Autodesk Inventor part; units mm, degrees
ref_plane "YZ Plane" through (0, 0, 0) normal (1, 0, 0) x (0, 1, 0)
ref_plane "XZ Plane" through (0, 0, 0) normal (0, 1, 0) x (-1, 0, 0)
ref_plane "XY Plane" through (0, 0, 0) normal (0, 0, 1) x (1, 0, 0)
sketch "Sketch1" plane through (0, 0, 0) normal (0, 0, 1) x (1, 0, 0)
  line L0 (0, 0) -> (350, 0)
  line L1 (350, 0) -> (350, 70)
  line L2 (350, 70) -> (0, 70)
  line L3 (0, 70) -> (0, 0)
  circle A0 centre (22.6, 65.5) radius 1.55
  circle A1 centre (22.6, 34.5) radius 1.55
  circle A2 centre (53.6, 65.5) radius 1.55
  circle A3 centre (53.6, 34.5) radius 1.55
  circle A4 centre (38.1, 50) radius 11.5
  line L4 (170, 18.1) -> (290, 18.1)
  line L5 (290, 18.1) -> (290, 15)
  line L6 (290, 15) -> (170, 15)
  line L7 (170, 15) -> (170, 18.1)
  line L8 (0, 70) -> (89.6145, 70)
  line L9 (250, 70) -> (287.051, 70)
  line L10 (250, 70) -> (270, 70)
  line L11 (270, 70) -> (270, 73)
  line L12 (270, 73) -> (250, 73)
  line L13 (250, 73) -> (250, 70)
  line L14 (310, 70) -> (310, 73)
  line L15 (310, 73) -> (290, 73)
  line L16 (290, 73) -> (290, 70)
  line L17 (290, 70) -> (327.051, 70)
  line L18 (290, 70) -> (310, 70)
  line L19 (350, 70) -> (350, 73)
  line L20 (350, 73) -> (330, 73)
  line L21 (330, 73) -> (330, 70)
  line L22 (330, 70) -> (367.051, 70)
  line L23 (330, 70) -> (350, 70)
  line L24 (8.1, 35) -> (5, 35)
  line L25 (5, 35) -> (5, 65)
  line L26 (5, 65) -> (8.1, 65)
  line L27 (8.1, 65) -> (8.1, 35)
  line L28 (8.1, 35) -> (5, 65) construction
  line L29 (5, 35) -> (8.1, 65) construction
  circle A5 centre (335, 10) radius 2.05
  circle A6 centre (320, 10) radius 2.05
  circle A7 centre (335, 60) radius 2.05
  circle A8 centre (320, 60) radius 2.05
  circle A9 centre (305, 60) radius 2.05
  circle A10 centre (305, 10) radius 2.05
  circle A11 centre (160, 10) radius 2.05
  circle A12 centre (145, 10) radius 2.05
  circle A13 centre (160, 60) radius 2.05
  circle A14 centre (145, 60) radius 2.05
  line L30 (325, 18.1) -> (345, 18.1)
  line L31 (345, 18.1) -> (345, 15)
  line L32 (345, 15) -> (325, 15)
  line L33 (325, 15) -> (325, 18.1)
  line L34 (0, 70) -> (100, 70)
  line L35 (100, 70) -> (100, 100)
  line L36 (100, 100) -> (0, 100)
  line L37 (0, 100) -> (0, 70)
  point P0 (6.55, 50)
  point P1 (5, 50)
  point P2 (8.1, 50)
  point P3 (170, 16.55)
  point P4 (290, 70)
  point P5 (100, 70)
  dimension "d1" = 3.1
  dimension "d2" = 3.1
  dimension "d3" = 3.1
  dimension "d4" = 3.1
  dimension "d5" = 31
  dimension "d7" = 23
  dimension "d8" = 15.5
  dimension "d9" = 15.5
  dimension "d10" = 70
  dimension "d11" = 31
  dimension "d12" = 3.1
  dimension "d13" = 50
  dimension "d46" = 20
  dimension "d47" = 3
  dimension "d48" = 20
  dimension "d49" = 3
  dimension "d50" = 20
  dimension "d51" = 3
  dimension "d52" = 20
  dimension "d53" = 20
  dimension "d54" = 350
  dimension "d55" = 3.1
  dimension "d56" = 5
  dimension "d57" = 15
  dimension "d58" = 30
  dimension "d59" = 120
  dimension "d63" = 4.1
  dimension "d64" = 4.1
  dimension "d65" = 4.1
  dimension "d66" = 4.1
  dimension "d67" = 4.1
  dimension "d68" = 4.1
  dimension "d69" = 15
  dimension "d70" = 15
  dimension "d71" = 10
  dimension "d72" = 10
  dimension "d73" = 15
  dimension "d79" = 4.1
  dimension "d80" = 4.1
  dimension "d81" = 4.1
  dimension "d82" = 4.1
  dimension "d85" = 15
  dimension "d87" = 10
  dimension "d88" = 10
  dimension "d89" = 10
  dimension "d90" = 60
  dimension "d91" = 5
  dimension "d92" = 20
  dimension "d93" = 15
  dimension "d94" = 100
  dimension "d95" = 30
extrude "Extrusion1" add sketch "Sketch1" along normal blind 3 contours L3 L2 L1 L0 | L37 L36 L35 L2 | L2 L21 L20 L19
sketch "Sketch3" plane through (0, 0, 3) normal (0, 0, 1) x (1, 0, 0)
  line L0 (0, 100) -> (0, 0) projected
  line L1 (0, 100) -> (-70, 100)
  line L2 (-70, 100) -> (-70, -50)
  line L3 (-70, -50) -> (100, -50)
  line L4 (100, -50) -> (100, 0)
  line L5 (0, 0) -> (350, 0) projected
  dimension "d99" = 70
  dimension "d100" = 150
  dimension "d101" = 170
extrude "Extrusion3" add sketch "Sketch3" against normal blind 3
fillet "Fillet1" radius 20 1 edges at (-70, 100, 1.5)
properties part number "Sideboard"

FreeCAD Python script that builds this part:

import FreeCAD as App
import Part
import Sketcher

V = App.Vector


def edges_at(feature, points):
    """Names of the edges that pass closest to the given points."""
    edges = feature.Shape.Edges
    near = lambda p: min(range(len(edges)), key=lambda i: edges[i].distToShape(Part.Vertex(*p))[0])
    return sorted({f"Edge{near(p) + 1}" for p in points})

doc = App.newDocument("Part")
body = doc.addObject("PartDesign::Body", "Body")

# Sketch on XY plane
sketch1 = doc.addObject("Sketcher::SketchObject", "Sketch")
body.addObject(sketch1)
sketch1.AttachmentSupport = (doc.XY_Plane, [""])
sketch1.MapMode = "FlatFace"
sketch1.addGeometry(Part.LineSegment(V(0, 0, 0), V(350, 0, 0)), False)
sketch1.addGeometry(Part.LineSegment(V(350, 0, 0), V(350, 73, 0)), False)
sketch1.addGeometry(Part.LineSegment(V(350, 73, 0), V(330, 73, 0)), False)
sketch1.addGeometry(Part.LineSegment(V(330, 73, 0), V(330, 70, 0)), False)
sketch1.addGeometry(Part.LineSegment(V(330, 70, 0), V(100, 70, 0)), False)
sketch1.addGeometry(Part.LineSegment(V(100, 70, 0), V(100, 100, 0)), False)
sketch1.addGeometry(Part.LineSegment(V(100, 100, 0), V(0, 100, 0)), False)
sketch1.addGeometry(Part.LineSegment(V(0, 100, 0), V(0, 0, 0)), False)
sketch1.addGeometry(Part.Circle(V(145, 10, 0), V(0, 0, 1), 2), False)
sketch1.addGeometry(Part.Circle(V(160, 10, 0), V(0, 0, 1), 2), False)
sketch1.addGeometry(Part.Circle(V(22.6, 34.5, 0), V(0, 0, 1), 1.6), False)
sketch1.addGeometry(Part.Circle(V(53.6, 34.5, 0), V(0, 0, 1), 1.6), False)
sketch1.addGeometry(Part.LineSegment(V(170, 15, 0), V(170, 18.1, 0)), False)
sketch1.addGeometry(Part.LineSegment(V(170, 18.1, 0), V(290, 18.1, 0)), False)
sketch1.addGeometry(Part.LineSegment(V(290, 18.1, 0), V(290, 15, 0)), False)
sketch1.addGeometry(Part.LineSegment(V(290, 15, 0), V(170, 15, 0)), False)
sketch1.addGeometry(Part.Circle(V(305, 10, 0), V(0, 0, 1), 2), False)
sketch1.addGeometry(Part.Circle(V(320, 10, 0), V(0, 0, 1), 2), False)
sketch1.addGeometry(Part.Circle(V(335, 10, 0), V(0, 0, 1), 2), False)
sketch1.addGeometry(Part.LineSegment(V(325, 15, 0), V(325, 18.1, 0)), False)
sketch1.addGeometry(Part.LineSegment(V(325, 18.1, 0), V(345, 18.1, 0)), False)
sketch1.addGeometry(Part.LineSegment(V(345, 18.1, 0), V(345, 15, 0)), False)
sketch1.addGeometry(Part.LineSegment(V(345, 15, 0), V(325, 15, 0)), False)
sketch1.addGeometry(Part.LineSegment(V(8.1, 65, 0), V(8.1, 35, 0)), False)
sketch1.addGeometry(Part.LineSegment(V(8.1, 35, 0), V(5, 35, 0)), False)
sketch1.addGeometry(Part.LineSegment(V(5, 35, 0), V(5, 65, 0)), False)
sketch1.addGeometry(Part.LineSegment(V(5, 65, 0), V(8.1, 65, 0)), False)
sketch1.addGeometry(Part.Circle(V(38.1, 50, 0), V(0, 0, 1), 11.5), False)
sketch1.addGeometry(Part.Circle(V(22.6, 65.5, 0), V(0, 0, 1), 1.6), False)
sketch1.addGeometry(Part.Circle(V(53.6, 65.5, 0), V(0, 0, 1), 1.6), False)
sketch1.addGeometry(Part.Circle(V(145, 60, 0), V(0, 0, 1), 2), False)
sketch1.addGeometry(Part.Circle(V(160, 60, 0), V(0, 0, 1), 2), False)
sketch1.addGeometry(Part.Circle(V(305, 60, 0), V(0, 0, 1), 2), False)
sketch1.addGeometry(Part.Circle(V(320, 60, 0), V(0, 0, 1), 2), False)
sketch1.addGeometry(Part.Circle(V(335, 60, 0), V(0, 0, 1), 2), False)
sketch1.addConstraint(Sketcher.Constraint("Coincident", 0, 2, 1, 1))
sketch1.addConstraint(Sketcher.Constraint("Coincident", 1, 2, 2, 1))
sketch1.addConstraint(Sketcher.Constraint("Coincident", 2, 2, 3, 1))
sketch1.addConstraint(Sketcher.Constraint("Coincident", 3, 2, 4, 1))
sketch1.addConstraint(Sketcher.Constraint("Coincident", 4, 2, 5, 1))
sketch1.addConstraint(Sketcher.Constraint("Coincident", 5, 2, 6, 1))
sketch1.addConstraint(Sketcher.Constraint("Coincident", 6, 2, 7, 1))
sketch1.addConstraint(Sketcher.Constraint("Coincident", 7, 2, 0, 1))
sketch1.addConstraint(Sketcher.Constraint("Coincident", 12, 2, 13, 1))
sketch1.addConstraint(Sketcher.Constraint("Coincident", 13, 2, 14, 1))
sketch1.addConstraint(Sketcher.Constraint("Coincident", 14, 2, 15, 1))
sketch1.addConstraint(Sketcher.Constraint("Coincident", 15, 2, 12, 1))
sketch1.addConstraint(Sketcher.Constraint("Coincident", 19, 2, 20, 1))
sketch1.addConstraint(Sketcher.Constraint("Coincident", 20, 2, 21, 1))
sketch1.addConstraint(Sketcher.Constraint("Coincident", 21, 2, 22, 1))
sketch1.addConstraint(Sketcher.Constraint("Coincident", 22, 2, 19, 1))
sketch1.addConstraint(Sketcher.Constraint("Coincident", 23, 2, 24, 1))
sketch1.addConstraint(Sketcher.Constraint("Coincident", 24, 2, 25, 1))
sketch1.addConstraint(Sketcher.Constraint("Coincident", 25, 2, 26, 1))
sketch1.addConstraint(Sketcher.Constraint("Coincident", 26, 2, 23, 1))
sketch1.addConstraint(Sketcher.Constraint("Horizontal", 0))
sketch1.addConstraint(Sketcher.Constraint("Vertical", 1))
sketch1.addConstraint(Sketcher.Constraint("Horizontal", 2))
sketch1.addConstraint(Sketcher.Constraint("Vertical", 3))
sketch1.addConstraint(Sketcher.Constraint("Horizontal", 4))
sketch1.addConstraint(Sketcher.Constraint("Vertical", 5))
sketch1.addConstraint(Sketcher.Constraint("Horizontal", 6))
sketch1.addConstraint(Sketcher.Constraint("Vertical", 7))
sketch1.addConstraint(Sketcher.Constraint("Vertical", 12))
sketch1.addConstraint(Sketcher.Constraint("Horizontal", 13))
sketch1.addConstraint(Sketcher.Constraint("Vertical", 14))
sketch1.addConstraint(Sketcher.Constraint("Horizontal", 15))
sketch1.addConstraint(Sketcher.Constraint("Vertical", 19))
sketch1.addConstraint(Sketcher.Constraint("Horizontal", 20))
sketch1.addConstraint(Sketcher.Constraint("Vertical", 21))
sketch1.addConstraint(Sketcher.Constraint("Horizontal", 22))
sketch1.addConstraint(Sketcher.Constraint("Vertical", 23))
sketch1.addConstraint(Sketcher.Constraint("Horizontal", 24))
sketch1.addConstraint(Sketcher.Constraint("Vertical", 25))
sketch1.addConstraint(Sketcher.Constraint("Horizontal", 26))
sketch1.addConstraint(Sketcher.Constraint("Coincident", 7, 2, -1, 1))
sketch1.addConstraint(Sketcher.Constraint("Equal", 8, 9))
sketch1.addConstraint(Sketcher.Constraint("Equal", 10, 11))
sketch1.addConstraint(Sketcher.Constraint("Equal", 9, 16))
sketch1.addConstraint(Sketcher.Constraint("Equal", 16, 17))
sketch1.addConstraint(Sketcher.Constraint("Equal", 17, 18))
sketch1.addConstraint(Sketcher.Constraint("Equal", 11, 28))
sketch1.addConstraint(Sketcher.Constraint("Equal", 28, 29))
sketch1.addConstraint(Sketcher.Constraint("Equal", 18, 30))
sketch1.addConstraint(Sketcher.Constraint("Equal", 30, 31))
sketch1.addConstraint(Sketcher.Constraint("Equal", 31, 32))
sketch1.addConstraint(Sketcher.Constraint("Equal", 32, 33))
sketch1.addConstraint(Sketcher.Constraint("Equal", 33, 34))
sketch1.addConstraint(Sketcher.Constraint("Horizontal", 8, 3, 9, 3))
sketch1.addConstraint(Sketcher.Constraint("Horizontal", 10, 3, 11, 3))
sketch1.addConstraint(Sketcher.Constraint("Horizontal", 9, 3, 16, 3))
sketch1.addConstraint(Sketcher.Constraint("Horizontal", 16, 3, 17, 3))
sketch1.addConstraint(Sketcher.Constraint("Horizontal", 17, 3, 18, 3))
sketch1.addConstraint(Sketcher.Constraint("Horizontal", 28, 3, 29, 3))
sketch1.addConstraint(Sketcher.Constraint("Horizontal", 30, 3, 31, 3))
sketch1.addConstraint(Sketcher.Constraint("Horizontal", 31, 3, 32, 3))
sketch1.addConstraint(Sketcher.Constraint("Horizontal", 32, 3, 33, 3))
sketch1.addConstraint(Sketcher.Constraint("Horizontal", 33, 3, 34, 3))
sketch1.addConstraint(Sketcher.Constraint("Horizontal", 13, 2, 19, 2))
sketch1.addConstraint(Sketcher.Constraint("Horizontal", 15, 2, 21, 2))
sketch1.addConstraint(Sketcher.Constraint("Vertical", 10, 3, 28, 3))
sketch1.addConstraint(Sketcher.Constraint("Vertical", 11, 3, 29, 3))
sketch1.addConstraint(Sketcher.Constraint("Vertical", 8, 3, 30, 3))
sketch1.addConstraint(Sketcher.Constraint("Vertical", 9, 3, 31, 3))
sketch1.addConstraint(Sketcher.Constraint("Vertical", 16, 3, 32, 3))
sketch1.addConstraint(Sketcher.Constraint("Vertical", 17, 3, 33, 3))
sketch1.addConstraint(Sketcher.Constraint("Vertical", 18, 3, 34, 3))
sketch1.addConstraint(Sketcher.Constraint("Equal", 2, 20))
sketch1.addConstraint(Sketcher.Constraint("Equal", 6, 7))
sketch1.addConstraint(Sketcher.Constraint("Equal", 26, 12))
sketch1.addConstraint(Sketcher.Constraint("Equal", 5, 23))
sketch1.addConstraint(Sketcher.Constraint("Diameter", 27, 23.0))
sketch1.addConstraint(Sketcher.Constraint("Diameter", 8, 4.1))
sketch1.addConstraint(Sketcher.Constraint("Diameter", 10, 3.1))
sketch1.addConstraint(Sketcher.Constraint("DistanceX", 0, 1, 0, 2, 350.0))
sketch1.addConstraint(Sketcher.Constraint("DistanceX", 2, 2, 2, 1, 20.0))
sketch1.addConstraint(Sketcher.Constraint("DistanceX", 6, 2, 6, 1, 100.0))
sketch1.addConstraint(Sketcher.Constraint("DistanceX", 13, 1, 13, 2, 120.0))
sketch1.addConstraint(Sketcher.Constraint("DistanceY", 3, 2, 3, 1, 3.0))
sketch1.addConstraint(Sketcher.Constraint("DistanceY", 5, 1, 5, 2, 30.0))
sketch1.addConstraint(Sketcher.Constraint("DistanceX", 24, 2, 24, 1, 3.1))
sketch1.addConstraint(Sketcher.Constraint("DistanceY", -1, 1, 8, 3, 10.0))
sketch1.addConstraint(Sketcher.Constraint("DistanceY", -1, 1, 27, 3, 50.0))
sketch1.addConstraint(Sketcher.Constraint("DistanceY", -1, 1, 30, 3, 60.0))
sketch1.addConstraint(Sketcher.Constraint("DistanceY", -1, 1, 14, 2, 15.0))
sketch1.addConstraint(Sketcher.Constraint("DistanceX", -1, 1, 24, 2, 5.0))
sketch1.addConstraint(Sketcher.Constraint("DistanceX", 8, 3, 9, 3, 15.0))
sketch1.addConstraint(Sketcher.Constraint("DistanceX", 10, 3, 11, 3, 31.0))
sketch1.addConstraint(Sketcher.Constraint("DistanceX", 16, 3, 17, 3, 15.0))
sketch1.addConstraint(Sketcher.Constraint("DistanceX", 17, 3, 18, 3, 15.0))
sketch1.addConstraint(Sketcher.Constraint("DistanceY", 10, 3, 28, 3, 31.0))
sketch1.addConstraint(Sketcher.Constraint("DistanceX", 18, 3, 0, 2, 15.0))
sketch1.addConstraint(Sketcher.Constraint("DistanceX", 4, 2, 31, 3, 60.0))
sketch1.addConstraint(Sketcher.Constraint("DistanceX", 9, 3, 12, 2, 10.0))
sketch1.addConstraint(Sketcher.Constraint("DistanceX", 17, 3, 19, 2, 5.0))
sketch1.addConstraint(Sketcher.Constraint("DistanceX", 23, 2, 27, 3, 30.0))
sketch1.addConstraint(Sketcher.Constraint("DistanceY", 23, 2, 27, 3, 15.0))
sketch1.addConstraint(Sketcher.Constraint("DistanceX", 10, 3, 27, 3, 15.5))
sketch1.addConstraint(Sketcher.Constraint("DistanceY", 10, 3, 27, 3, 15.5))
pad1 = doc.addObject("PartDesign::Pad", "Pad")
body.addObject(pad1)
pad1.Profile = sketch1
pad1.Length = 3

# Sketch on XY plane
sketch2 = doc.addObject("Sketcher::SketchObject", "Sketch001")
body.addObject(sketch2)
sketch2.AttachmentSupport = (doc.XY_Plane, [""])
sketch2.MapMode = "FlatFace"
sketch2.AttachmentOffset = App.Placement(V(0, 0, 3), App.Rotation())
sketch2.addGeometry(Part.LineSegment(V(0, 0, 0), V(0, 100, 0)), False)
sketch2.addGeometry(Part.LineSegment(V(0, 100, 0), V(-70, 100, 0)), False)
sketch2.addGeometry(Part.LineSegment(V(-70, 100, 0), V(-70, -50, 0)), False)
sketch2.addGeometry(Part.LineSegment(V(-70, -50, 0), V(100, -50, 0)), False)
sketch2.addGeometry(Part.LineSegment(V(100, -50, 0), V(100, 0, 0)), False)
sketch2.addGeometry(Part.LineSegment(V(100, 0, 0), V(0, 0, 0)), False)
sketch2.addConstraint(Sketcher.Constraint("Coincident", 0, 2, 1, 1))
sketch2.addConstraint(Sketcher.Constraint("Coincident", 1, 2, 2, 1))
sketch2.addConstraint(Sketcher.Constraint("Coincident", 2, 2, 3, 1))
sketch2.addConstraint(Sketcher.Constraint("Coincident", 3, 2, 4, 1))
sketch2.addConstraint(Sketcher.Constraint("Coincident", 4, 2, 5, 1))
sketch2.addConstraint(Sketcher.Constraint("Coincident", 5, 2, 0, 1))
sketch2.addConstraint(Sketcher.Constraint("Vertical", 0))
sketch2.addConstraint(Sketcher.Constraint("Horizontal", 1))
sketch2.addConstraint(Sketcher.Constraint("Vertical", 2))
sketch2.addConstraint(Sketcher.Constraint("Horizontal", 3))
sketch2.addConstraint(Sketcher.Constraint("Vertical", 4))
sketch2.addConstraint(Sketcher.Constraint("Horizontal", 5))
sketch2.addConstraint(Sketcher.Constraint("Coincident", 5, 2, -1, 1))
sketch2.addConstraint(Sketcher.Constraint("Equal", 5, 0))
sketch2.addConstraint(Sketcher.Constraint("DistanceX", 1, 2, 1, 1, 70.0))
sketch2.addConstraint(Sketcher.Constraint("DistanceX", 3, 1, 3, 2, 170.0))
sketch2.addConstraint(Sketcher.Constraint("DistanceY", 2, 2, 2, 1, 150.0))
pad2 = doc.addObject("PartDesign::Pad", "Pad001")
body.addObject(pad2)
pad2.Profile = sketch2
pad2.Length = 3
pad2.Reversed = True
doc.recompute()

fillet = doc.addObject("PartDesign::Fillet", "Fillet")
body.addObject(fillet)
fillet.Base = (pad2, edges_at(pad2, [(-70, 100, 1.5)]))
fillet.Radius = 20

doc.recompute()
